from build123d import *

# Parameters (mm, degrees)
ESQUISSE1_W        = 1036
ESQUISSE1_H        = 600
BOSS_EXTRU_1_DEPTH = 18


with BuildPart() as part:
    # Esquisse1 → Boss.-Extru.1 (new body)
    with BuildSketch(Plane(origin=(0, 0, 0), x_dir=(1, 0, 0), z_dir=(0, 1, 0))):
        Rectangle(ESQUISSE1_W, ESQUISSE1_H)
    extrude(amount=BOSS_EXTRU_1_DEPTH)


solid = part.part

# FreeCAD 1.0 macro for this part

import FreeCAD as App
import Part
import Sketcher
from FreeCAD import Vector


def add_polygon(sketch, points):
    """Adds a closed chain of lines whose ends are joined by coincident constraints."""
    first, n = sketch.GeometryCount, len(points)
    for a, b in zip(points, points[1:] + points[:1]):
        sketch.addGeometry(Part.LineSegment(App.Vector(*a, 0), App.Vector(*b, 0)), False)
    for i in range(n):
        sketch.addConstraint(Sketcher.Constraint("Coincident", first + i, 2, first + (i + 1) % n, 1))

doc = App.newDocument("Part")
body = doc.addObject("PartDesign::Body", "Body")

sketch1 = body.newObject("Sketcher::SketchObject", "Sketch")
sketch1.AttachmentSupport = (doc.getObject("XZ_Plane"), [""])
sketch1.MapMode = "FlatFace"
add_polygon(sketch1, [(-518, -300), (-518, 300), (518, 300), (518, -300)])
sketch1.addConstraint([
    Sketcher.Constraint("Vertical", 0),
    Sketcher.Constraint("Horizontal", 1),
    Sketcher.Constraint("Vertical", 2),
    Sketcher.Constraint("Horizontal", 3),
    Sketcher.Constraint("Symmetric", 0, 2, 2, 2, -1, 1),
    Sketcher.Constraint("DistanceX", 1, 1, 1, 2, 1036.0),
    Sketcher.Constraint("DistanceY", 0, 1, 0, 2, 600.0),
])
pad1 = body.newObject("PartDesign::Pad", "Pad")
pad1.Profile = sketch1
pad1.Length = 18
pad1.Reversed = True

doc.recompute()
